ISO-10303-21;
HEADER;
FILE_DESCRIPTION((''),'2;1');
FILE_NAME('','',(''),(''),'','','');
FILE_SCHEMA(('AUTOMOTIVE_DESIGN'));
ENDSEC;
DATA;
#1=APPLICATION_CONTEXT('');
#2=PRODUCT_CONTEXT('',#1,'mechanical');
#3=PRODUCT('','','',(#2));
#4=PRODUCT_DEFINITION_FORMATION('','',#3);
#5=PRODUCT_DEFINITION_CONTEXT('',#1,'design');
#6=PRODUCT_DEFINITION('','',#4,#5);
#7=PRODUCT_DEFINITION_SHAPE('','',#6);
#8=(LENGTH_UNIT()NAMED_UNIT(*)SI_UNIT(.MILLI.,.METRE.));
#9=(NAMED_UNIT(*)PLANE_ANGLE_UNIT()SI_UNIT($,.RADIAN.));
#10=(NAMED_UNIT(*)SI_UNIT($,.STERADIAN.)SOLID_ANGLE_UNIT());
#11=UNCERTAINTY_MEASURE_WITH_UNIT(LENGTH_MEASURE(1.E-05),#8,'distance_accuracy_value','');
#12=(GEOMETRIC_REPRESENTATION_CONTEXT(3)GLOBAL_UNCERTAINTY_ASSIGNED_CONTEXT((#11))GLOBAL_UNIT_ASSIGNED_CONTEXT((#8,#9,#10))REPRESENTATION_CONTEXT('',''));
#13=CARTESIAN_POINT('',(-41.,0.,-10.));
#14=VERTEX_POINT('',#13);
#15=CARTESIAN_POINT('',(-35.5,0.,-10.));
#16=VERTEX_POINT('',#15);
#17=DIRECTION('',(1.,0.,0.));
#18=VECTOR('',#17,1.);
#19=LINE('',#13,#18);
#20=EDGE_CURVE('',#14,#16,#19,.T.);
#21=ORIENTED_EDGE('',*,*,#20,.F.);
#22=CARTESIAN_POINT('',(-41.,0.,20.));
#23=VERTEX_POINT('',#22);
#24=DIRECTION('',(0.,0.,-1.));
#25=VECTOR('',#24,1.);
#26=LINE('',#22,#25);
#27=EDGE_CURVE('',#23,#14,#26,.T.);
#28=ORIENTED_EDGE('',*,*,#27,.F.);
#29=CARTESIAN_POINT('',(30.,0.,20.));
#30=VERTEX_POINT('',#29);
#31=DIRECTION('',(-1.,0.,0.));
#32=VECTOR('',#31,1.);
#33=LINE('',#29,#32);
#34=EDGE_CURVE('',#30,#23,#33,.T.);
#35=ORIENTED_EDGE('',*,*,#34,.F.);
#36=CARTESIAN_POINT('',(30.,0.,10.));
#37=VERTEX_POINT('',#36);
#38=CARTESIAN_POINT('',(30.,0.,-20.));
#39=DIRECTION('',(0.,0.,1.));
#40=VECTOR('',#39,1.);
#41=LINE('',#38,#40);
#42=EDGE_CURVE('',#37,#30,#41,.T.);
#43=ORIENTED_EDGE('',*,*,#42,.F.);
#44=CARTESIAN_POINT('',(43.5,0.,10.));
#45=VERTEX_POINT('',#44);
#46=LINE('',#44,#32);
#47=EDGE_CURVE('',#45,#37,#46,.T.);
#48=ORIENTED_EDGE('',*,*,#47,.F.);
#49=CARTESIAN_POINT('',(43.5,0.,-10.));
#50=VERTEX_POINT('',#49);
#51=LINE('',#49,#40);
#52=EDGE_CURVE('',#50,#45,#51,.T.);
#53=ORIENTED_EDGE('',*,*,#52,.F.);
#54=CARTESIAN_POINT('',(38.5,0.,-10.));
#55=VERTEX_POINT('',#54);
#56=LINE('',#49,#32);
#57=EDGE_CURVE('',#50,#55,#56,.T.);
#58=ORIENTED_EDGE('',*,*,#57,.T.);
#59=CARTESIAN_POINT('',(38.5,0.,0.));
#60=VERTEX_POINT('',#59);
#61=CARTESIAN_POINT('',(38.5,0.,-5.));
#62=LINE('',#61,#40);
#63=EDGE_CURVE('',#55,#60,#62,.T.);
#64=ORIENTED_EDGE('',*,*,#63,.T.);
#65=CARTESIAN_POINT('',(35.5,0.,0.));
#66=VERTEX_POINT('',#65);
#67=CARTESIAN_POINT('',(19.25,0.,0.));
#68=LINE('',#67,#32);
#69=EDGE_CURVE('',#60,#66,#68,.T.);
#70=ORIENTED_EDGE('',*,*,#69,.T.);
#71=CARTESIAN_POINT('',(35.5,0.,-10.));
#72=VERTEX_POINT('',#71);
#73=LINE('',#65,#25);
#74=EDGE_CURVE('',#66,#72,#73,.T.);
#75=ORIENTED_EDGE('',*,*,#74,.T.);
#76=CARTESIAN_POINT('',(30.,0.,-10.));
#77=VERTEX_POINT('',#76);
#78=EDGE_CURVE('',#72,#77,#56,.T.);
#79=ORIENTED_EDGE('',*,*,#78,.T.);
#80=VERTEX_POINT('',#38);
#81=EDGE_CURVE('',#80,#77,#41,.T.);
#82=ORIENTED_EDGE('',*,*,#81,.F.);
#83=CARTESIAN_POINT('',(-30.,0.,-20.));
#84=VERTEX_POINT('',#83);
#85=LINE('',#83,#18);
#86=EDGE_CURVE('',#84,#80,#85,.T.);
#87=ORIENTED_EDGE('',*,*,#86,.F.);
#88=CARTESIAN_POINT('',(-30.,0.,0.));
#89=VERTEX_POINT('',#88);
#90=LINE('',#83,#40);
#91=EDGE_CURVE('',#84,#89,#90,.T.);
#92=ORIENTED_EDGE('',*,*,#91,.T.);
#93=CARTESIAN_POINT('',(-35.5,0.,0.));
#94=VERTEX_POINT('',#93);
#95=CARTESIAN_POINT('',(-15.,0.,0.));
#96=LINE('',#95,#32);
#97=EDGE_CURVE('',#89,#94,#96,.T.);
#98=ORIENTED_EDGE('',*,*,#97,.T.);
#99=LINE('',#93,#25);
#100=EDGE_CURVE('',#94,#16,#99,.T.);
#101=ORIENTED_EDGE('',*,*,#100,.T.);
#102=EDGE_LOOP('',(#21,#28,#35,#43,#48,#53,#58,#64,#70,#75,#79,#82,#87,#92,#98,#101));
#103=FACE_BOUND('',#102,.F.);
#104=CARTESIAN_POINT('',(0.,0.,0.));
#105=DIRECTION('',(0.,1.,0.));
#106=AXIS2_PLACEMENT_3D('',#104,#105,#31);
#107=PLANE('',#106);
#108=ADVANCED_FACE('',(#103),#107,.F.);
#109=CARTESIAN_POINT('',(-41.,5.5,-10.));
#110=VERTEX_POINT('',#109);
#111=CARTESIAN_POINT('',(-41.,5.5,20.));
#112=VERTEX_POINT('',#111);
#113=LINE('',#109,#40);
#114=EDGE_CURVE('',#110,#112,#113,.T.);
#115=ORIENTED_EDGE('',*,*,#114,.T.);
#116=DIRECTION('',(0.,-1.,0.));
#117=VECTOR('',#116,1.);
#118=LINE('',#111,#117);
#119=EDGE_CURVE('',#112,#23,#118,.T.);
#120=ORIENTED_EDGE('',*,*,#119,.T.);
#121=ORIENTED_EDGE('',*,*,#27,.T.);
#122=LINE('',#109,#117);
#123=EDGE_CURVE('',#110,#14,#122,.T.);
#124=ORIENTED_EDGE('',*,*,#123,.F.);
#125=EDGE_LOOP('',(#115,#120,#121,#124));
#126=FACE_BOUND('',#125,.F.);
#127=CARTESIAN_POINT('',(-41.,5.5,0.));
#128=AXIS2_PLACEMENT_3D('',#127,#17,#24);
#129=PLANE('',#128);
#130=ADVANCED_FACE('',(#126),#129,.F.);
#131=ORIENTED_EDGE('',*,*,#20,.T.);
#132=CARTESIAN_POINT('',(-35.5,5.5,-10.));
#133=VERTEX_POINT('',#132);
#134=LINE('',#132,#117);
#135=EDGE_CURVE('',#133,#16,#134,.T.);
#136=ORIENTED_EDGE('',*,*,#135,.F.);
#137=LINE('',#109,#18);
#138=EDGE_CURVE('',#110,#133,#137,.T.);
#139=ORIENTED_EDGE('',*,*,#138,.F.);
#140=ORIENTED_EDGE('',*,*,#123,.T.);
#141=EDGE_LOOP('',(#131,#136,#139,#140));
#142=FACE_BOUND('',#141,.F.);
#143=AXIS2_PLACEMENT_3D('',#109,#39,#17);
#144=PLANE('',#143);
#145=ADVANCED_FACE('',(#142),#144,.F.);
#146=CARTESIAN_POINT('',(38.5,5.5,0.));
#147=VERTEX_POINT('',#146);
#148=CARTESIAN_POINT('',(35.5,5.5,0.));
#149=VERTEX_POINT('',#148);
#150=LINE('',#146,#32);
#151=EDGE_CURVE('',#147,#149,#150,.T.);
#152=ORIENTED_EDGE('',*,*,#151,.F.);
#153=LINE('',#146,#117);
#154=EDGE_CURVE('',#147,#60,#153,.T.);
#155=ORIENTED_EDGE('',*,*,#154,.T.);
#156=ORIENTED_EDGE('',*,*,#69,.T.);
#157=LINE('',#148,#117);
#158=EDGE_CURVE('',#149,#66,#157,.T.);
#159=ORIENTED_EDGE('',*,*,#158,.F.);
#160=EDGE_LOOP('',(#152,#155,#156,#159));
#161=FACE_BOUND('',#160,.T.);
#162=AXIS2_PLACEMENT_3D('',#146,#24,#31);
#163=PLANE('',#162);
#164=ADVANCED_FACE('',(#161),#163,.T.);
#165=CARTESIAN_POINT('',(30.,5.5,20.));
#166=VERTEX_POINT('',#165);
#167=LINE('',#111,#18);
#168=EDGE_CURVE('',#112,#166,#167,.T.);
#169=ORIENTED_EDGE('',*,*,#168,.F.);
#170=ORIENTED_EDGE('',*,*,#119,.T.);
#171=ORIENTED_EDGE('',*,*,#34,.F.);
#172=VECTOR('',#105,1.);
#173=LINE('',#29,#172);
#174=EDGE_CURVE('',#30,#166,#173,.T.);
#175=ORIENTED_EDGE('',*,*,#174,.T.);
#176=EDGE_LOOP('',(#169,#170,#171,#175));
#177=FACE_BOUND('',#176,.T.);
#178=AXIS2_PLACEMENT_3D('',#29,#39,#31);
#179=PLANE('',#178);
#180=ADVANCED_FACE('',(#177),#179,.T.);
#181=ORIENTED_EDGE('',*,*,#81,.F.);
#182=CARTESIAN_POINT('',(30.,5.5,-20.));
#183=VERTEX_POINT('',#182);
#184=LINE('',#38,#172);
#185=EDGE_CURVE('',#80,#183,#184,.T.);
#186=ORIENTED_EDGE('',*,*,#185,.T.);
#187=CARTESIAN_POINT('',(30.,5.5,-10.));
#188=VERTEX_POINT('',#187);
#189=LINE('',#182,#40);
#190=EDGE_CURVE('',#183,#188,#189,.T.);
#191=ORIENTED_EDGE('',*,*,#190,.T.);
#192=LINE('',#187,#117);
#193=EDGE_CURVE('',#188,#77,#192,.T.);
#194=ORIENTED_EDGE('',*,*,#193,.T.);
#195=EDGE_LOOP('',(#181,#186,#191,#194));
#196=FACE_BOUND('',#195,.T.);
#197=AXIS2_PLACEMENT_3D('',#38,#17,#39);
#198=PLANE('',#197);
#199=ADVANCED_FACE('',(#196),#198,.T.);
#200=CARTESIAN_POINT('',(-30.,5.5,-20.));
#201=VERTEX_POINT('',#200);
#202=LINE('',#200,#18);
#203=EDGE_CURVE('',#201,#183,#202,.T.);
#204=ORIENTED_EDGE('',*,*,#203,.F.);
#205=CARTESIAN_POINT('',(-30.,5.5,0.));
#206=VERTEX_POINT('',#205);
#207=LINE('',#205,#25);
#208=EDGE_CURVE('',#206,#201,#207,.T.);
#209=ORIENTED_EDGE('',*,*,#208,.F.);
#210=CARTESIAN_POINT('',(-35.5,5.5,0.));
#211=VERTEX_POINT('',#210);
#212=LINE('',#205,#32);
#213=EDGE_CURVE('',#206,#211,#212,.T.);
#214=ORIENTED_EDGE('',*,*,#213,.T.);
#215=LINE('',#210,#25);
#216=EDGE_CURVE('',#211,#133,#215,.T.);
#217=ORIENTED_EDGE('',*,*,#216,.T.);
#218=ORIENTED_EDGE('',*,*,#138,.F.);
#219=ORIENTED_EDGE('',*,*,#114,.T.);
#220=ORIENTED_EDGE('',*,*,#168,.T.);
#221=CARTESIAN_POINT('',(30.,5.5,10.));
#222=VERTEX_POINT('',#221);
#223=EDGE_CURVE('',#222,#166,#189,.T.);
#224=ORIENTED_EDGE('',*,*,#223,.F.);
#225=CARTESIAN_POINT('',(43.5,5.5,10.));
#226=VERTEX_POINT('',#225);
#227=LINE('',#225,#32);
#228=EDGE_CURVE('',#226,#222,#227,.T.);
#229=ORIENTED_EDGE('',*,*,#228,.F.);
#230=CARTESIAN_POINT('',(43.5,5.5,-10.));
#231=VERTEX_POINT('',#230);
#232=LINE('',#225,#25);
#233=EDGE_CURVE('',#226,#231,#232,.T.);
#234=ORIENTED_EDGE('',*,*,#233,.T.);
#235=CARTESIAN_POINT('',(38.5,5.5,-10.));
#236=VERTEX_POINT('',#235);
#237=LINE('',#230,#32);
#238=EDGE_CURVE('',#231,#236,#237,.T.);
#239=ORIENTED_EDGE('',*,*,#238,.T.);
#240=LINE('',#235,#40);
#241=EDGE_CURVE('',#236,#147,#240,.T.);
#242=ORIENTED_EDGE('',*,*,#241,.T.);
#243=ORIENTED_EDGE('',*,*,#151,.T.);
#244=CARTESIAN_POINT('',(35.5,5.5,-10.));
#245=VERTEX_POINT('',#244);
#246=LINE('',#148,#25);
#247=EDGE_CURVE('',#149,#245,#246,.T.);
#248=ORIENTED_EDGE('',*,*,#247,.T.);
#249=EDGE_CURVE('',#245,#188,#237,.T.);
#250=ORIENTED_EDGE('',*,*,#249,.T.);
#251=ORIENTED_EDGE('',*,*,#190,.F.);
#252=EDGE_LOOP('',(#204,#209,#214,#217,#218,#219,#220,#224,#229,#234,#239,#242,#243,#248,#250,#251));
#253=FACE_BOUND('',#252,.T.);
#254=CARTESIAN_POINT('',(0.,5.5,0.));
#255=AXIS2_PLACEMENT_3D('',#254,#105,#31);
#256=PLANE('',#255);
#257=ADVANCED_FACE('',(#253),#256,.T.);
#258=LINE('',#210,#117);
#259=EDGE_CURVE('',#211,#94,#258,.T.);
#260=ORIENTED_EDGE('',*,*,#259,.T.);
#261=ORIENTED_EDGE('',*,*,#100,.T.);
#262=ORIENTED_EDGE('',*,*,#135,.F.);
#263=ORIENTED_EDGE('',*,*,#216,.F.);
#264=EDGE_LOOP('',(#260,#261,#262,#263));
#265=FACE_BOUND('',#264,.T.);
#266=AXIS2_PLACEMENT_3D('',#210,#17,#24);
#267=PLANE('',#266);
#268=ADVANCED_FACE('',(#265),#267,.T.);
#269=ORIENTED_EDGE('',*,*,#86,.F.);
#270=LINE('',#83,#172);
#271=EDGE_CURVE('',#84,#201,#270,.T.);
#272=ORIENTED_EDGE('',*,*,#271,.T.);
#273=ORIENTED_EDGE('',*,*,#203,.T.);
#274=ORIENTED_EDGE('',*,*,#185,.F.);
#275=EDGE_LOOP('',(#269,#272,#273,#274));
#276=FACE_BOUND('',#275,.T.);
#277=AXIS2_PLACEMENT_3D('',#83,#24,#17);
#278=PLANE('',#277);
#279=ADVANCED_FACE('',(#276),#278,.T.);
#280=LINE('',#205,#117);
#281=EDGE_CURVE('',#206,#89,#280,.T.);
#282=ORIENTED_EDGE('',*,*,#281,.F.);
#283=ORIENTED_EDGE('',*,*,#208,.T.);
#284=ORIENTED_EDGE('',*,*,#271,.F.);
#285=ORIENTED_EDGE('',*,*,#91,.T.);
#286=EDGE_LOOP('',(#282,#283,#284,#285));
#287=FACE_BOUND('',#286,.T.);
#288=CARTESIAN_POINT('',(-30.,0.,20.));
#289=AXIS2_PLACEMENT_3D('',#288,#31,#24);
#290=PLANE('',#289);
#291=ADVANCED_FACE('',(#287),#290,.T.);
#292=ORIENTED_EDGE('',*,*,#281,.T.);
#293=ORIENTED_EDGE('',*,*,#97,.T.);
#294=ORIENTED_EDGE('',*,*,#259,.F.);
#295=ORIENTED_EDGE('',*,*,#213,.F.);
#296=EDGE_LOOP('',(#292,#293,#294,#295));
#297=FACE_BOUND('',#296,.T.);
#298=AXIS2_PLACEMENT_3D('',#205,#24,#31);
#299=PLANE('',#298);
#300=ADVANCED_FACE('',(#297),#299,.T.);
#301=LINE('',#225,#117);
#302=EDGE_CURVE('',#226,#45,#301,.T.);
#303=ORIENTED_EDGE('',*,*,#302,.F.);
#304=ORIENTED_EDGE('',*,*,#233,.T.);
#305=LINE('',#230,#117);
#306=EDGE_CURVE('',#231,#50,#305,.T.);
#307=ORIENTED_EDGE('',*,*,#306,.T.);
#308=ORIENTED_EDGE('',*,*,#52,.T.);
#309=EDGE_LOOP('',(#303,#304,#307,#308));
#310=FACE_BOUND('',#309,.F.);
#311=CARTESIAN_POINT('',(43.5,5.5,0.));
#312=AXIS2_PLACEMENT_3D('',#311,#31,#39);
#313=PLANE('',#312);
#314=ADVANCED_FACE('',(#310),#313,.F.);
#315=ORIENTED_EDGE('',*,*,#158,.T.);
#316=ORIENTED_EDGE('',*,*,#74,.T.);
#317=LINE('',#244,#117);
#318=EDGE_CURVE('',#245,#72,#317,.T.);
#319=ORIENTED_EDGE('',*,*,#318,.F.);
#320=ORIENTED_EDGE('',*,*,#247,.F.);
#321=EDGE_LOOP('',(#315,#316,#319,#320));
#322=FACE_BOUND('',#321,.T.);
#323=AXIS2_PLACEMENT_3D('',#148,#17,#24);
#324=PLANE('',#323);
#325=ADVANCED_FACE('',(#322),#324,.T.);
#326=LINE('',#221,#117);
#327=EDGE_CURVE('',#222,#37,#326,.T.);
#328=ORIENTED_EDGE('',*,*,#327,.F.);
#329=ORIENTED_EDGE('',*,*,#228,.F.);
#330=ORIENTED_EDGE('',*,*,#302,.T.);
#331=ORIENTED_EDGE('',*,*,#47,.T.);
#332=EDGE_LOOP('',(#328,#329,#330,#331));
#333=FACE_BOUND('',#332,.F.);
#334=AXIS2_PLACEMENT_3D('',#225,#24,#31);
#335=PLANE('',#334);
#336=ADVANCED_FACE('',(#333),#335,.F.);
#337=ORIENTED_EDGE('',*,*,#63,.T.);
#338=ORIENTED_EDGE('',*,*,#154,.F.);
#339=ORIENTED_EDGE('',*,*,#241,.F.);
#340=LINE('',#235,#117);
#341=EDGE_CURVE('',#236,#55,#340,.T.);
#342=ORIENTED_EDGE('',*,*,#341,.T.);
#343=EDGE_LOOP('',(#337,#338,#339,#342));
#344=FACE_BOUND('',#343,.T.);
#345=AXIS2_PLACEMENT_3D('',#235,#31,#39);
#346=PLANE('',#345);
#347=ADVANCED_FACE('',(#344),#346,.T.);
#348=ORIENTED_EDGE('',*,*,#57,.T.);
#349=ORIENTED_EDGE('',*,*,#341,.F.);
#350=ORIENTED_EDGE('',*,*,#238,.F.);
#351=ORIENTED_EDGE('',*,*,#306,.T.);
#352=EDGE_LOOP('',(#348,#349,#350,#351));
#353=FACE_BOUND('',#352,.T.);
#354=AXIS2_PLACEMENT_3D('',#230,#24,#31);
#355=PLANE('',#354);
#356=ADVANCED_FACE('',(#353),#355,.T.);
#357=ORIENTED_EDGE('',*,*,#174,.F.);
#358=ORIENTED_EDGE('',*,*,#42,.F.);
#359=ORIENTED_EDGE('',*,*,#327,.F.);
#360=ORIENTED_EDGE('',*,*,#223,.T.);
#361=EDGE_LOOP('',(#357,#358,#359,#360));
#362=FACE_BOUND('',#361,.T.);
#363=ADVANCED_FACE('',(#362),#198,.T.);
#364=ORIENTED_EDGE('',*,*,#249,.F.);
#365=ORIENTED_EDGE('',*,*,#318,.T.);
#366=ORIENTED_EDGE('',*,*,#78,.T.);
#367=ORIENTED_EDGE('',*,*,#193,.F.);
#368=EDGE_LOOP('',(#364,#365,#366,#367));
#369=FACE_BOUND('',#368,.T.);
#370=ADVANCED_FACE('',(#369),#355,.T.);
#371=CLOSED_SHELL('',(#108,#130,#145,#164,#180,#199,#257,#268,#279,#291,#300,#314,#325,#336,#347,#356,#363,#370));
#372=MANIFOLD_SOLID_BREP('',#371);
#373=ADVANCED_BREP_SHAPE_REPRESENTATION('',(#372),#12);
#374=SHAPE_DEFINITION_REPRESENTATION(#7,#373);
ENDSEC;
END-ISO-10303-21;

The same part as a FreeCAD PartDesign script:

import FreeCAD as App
import Part
import Sketcher
from FreeCAD import Vector
Q = App.Units.Quantity


def add_polygon(sketch, points):
    """Adds a closed chain of lines whose ends are joined by coincident constraints."""
    first, n = sketch.GeometryCount, len(points)
    for a, b in zip(points, points[1:] + points[:1]):
        sketch.addGeometry(Part.LineSegment(App.Vector(*a, 0), App.Vector(*b, 0)), False)
    for i in range(n):
        sketch.addConstraint(Sketcher.Constraint("Coincident", first + i, 2, first + (i + 1) % n, 1))

doc = App.newDocument("Part")
body = doc.addObject("PartDesign::Body", "Body")

# Sketch on XZ plane
sketch1 = body.newObject("Sketcher::SketchObject", "Sketch")
sketch1.AttachmentSupport = (doc.getObject("XZ_Plane"), [""])
sketch1.MapMode = "FlatFace"
add_polygon(sketch1, [(30, -20), (-30, -20), (-30, 20), (30, 20)])  # lines 0-3
sketch1.addConstraint([
    Sketcher.Constraint("Horizontal", 0),
    Sketcher.Constraint("Vertical", 1),
    Sketcher.Constraint("Horizontal", 2),
    Sketcher.Constraint("Vertical", 3),
    Sketcher.Constraint("Symmetric", 0, 2, 2, 2, -1, 1),
    Sketcher.Constraint("DistanceX", 0, 2, 0, 1, Q("60 mm")),
    Sketcher.Constraint("DistanceY", 1, 1, 1, 2, Q("40 mm")),
])
pad1 = body.newObject("PartDesign::Pad", "Pad")
pad1.Profile = sketch1
pad1.Length = 5.5
pad1.Reversed = True

# Sketch on XZ plane
sketch2 = body.newObject("Sketcher::SketchObject", "Sketch001")
sketch2.AttachmentSupport = (doc.getObject("XZ_Plane"), [""])
sketch2.MapMode = "FlatFace"
sketch2.AttachmentOffset = App.Placement(Vector(0, 0, -5.5), App.Rotation())
add_polygon(sketch2, [(30, 10), (44, 10), (44, -10), (30, -10)])  # lines 0-3
sketch2.addConstraint([
    Sketcher.Constraint("Horizontal", 0),
    Sketcher.Constraint("Vertical", 1),
    Sketcher.Constraint("Horizontal", 2),
    Sketcher.Constraint("Vertical", 3),
    Sketcher.Constraint("DistanceX", 0, 1, 0, 2, Q("13.5 mm")),
    Sketcher.Constraint("DistanceY", -1, 1, 0, 2, Q("10 mm")),
    Sketcher.Constraint("DistanceY", 1, 2, -1, 1, Q("10 mm")),
    Sketcher.Constraint("DistanceX", -1, 1, 2, 2, Q("30 mm")),
])
pad2 = body.newObject("PartDesign::Pad", "Pad001")
pad2.Profile = sketch2
pad2.Length = 5.5

# Sketch on XZ plane
sketch3 = body.newObject("Sketcher::SketchObject", "Sketch002")
sketch3.AttachmentSupport = (doc.getObject("XZ_Plane"), [""])
sketch3.MapMode = "FlatFace"
sketch3.AttachmentOffset = App.Placement(Vector(0, 0, -5.5), App.Rotation())
add_polygon(sketch3, [(38.5, 0), (38.5, -10), (35.5, -10), (35.5, 0)])  # lines 0-3
sketch3.addConstraint([
    Sketcher.Constraint("Vertical", 0),
    Sketcher.Constraint("Horizontal", 1),
    Sketcher.Constraint("Vertical", 2),
    Sketcher.Constraint("Horizontal", 3),
    Sketcher.Constraint("PointOnObject", 2, 2, -1),
    Sketcher.Constraint("DistanceX", 1, 2, 1, 1, Q("3 mm")),
    Sketcher.Constraint("DistanceY", 0, 2, 0, 1, Q("10 mm")),
    Sketcher.Constraint("DistanceX", -1, 1, 0, 2, Q("38.5 mm")),
])
pocket1 = body.newObject("PartDesign::Pocket", "Pocket")
pocket1.Profile = sketch3
pocket1.Type = "ThroughAll"
pocket1.Reversed = True

# Sketch on XZ plane
sketch4 = body.newObject("Sketcher::SketchObject", "Sketch003")
sketch4.AttachmentSupport = (doc.getObject("XZ_Plane"), [""])
sketch4.MapMode = "FlatFace"
sketch4.AttachmentOffset = App.Placement(Vector(0, 0, -5.5), App.Rotation())
add_polygon(sketch4, [(-30, -10), (-41, -10), (-41, 20), (-30, 20)])  # lines 0-3
sketch4.addConstraint([
    Sketcher.Constraint("Horizontal", 0),
    Sketcher.Constraint("Vertical", 1),
    Sketcher.Constraint("Horizontal", 2),
    Sketcher.Constraint("Vertical", 3),
    Sketcher.Constraint("DistanceX", 0, 2, 0, 1, Q("11 mm")),
    Sketcher.Constraint("DistanceY", 0, 2, -1, 1, Q("10 mm")),
    Sketcher.Constraint("DistanceY", 1, 1, 1, 2, Q("30 mm")),
    Sketcher.Constraint("DistanceX", 0, 2, -1, 1, Q("41 mm")),
])
pad3 = body.newObject("PartDesign::Pad", "Pad002")
pad3.Profile = sketch4
pad3.Length = 5.5

# Sketch on XZ plane
sketch5 = body.newObject("Sketcher::SketchObject", "Sketch004")
sketch5.AttachmentSupport = (doc.getObject("XZ_Plane"), [""])
sketch5.MapMode = "FlatFace"
sketch5.AttachmentOffset = App.Placement(Vector(0, 0, -5.5), App.Rotation())
add_polygon(sketch5, [(-30, 0), (-30, -10), (-36, -10), (-36, 0)])  # lines 0-3
sketch5.addConstraint([
    Sketcher.Constraint("Vertical", 0),
    Sketcher.Constraint("Horizontal", 1),
    Sketcher.Constraint("Vertical", 2),
    Sketcher.Constraint("Horizontal", 3),
    Sketcher.Constraint("PointOnObject", 2, 2, -1),
    Sketcher.Constraint("DistanceX", 1, 2, 1, 1, Q("5.5 mm")),
    Sketcher.Constraint("DistanceY", 0, 2, 0, 1, Q("10 mm")),
    Sketcher.Constraint("DistanceX", 0, 2, -1, 1, Q("30 mm")),
])
pocket2 = body.newObject("PartDesign::Pocket", "Pocket001")
pocket2.Profile = sketch5
pocket2.Type = "ThroughAll"
pocket2.Reversed = True

doc.recompute()
